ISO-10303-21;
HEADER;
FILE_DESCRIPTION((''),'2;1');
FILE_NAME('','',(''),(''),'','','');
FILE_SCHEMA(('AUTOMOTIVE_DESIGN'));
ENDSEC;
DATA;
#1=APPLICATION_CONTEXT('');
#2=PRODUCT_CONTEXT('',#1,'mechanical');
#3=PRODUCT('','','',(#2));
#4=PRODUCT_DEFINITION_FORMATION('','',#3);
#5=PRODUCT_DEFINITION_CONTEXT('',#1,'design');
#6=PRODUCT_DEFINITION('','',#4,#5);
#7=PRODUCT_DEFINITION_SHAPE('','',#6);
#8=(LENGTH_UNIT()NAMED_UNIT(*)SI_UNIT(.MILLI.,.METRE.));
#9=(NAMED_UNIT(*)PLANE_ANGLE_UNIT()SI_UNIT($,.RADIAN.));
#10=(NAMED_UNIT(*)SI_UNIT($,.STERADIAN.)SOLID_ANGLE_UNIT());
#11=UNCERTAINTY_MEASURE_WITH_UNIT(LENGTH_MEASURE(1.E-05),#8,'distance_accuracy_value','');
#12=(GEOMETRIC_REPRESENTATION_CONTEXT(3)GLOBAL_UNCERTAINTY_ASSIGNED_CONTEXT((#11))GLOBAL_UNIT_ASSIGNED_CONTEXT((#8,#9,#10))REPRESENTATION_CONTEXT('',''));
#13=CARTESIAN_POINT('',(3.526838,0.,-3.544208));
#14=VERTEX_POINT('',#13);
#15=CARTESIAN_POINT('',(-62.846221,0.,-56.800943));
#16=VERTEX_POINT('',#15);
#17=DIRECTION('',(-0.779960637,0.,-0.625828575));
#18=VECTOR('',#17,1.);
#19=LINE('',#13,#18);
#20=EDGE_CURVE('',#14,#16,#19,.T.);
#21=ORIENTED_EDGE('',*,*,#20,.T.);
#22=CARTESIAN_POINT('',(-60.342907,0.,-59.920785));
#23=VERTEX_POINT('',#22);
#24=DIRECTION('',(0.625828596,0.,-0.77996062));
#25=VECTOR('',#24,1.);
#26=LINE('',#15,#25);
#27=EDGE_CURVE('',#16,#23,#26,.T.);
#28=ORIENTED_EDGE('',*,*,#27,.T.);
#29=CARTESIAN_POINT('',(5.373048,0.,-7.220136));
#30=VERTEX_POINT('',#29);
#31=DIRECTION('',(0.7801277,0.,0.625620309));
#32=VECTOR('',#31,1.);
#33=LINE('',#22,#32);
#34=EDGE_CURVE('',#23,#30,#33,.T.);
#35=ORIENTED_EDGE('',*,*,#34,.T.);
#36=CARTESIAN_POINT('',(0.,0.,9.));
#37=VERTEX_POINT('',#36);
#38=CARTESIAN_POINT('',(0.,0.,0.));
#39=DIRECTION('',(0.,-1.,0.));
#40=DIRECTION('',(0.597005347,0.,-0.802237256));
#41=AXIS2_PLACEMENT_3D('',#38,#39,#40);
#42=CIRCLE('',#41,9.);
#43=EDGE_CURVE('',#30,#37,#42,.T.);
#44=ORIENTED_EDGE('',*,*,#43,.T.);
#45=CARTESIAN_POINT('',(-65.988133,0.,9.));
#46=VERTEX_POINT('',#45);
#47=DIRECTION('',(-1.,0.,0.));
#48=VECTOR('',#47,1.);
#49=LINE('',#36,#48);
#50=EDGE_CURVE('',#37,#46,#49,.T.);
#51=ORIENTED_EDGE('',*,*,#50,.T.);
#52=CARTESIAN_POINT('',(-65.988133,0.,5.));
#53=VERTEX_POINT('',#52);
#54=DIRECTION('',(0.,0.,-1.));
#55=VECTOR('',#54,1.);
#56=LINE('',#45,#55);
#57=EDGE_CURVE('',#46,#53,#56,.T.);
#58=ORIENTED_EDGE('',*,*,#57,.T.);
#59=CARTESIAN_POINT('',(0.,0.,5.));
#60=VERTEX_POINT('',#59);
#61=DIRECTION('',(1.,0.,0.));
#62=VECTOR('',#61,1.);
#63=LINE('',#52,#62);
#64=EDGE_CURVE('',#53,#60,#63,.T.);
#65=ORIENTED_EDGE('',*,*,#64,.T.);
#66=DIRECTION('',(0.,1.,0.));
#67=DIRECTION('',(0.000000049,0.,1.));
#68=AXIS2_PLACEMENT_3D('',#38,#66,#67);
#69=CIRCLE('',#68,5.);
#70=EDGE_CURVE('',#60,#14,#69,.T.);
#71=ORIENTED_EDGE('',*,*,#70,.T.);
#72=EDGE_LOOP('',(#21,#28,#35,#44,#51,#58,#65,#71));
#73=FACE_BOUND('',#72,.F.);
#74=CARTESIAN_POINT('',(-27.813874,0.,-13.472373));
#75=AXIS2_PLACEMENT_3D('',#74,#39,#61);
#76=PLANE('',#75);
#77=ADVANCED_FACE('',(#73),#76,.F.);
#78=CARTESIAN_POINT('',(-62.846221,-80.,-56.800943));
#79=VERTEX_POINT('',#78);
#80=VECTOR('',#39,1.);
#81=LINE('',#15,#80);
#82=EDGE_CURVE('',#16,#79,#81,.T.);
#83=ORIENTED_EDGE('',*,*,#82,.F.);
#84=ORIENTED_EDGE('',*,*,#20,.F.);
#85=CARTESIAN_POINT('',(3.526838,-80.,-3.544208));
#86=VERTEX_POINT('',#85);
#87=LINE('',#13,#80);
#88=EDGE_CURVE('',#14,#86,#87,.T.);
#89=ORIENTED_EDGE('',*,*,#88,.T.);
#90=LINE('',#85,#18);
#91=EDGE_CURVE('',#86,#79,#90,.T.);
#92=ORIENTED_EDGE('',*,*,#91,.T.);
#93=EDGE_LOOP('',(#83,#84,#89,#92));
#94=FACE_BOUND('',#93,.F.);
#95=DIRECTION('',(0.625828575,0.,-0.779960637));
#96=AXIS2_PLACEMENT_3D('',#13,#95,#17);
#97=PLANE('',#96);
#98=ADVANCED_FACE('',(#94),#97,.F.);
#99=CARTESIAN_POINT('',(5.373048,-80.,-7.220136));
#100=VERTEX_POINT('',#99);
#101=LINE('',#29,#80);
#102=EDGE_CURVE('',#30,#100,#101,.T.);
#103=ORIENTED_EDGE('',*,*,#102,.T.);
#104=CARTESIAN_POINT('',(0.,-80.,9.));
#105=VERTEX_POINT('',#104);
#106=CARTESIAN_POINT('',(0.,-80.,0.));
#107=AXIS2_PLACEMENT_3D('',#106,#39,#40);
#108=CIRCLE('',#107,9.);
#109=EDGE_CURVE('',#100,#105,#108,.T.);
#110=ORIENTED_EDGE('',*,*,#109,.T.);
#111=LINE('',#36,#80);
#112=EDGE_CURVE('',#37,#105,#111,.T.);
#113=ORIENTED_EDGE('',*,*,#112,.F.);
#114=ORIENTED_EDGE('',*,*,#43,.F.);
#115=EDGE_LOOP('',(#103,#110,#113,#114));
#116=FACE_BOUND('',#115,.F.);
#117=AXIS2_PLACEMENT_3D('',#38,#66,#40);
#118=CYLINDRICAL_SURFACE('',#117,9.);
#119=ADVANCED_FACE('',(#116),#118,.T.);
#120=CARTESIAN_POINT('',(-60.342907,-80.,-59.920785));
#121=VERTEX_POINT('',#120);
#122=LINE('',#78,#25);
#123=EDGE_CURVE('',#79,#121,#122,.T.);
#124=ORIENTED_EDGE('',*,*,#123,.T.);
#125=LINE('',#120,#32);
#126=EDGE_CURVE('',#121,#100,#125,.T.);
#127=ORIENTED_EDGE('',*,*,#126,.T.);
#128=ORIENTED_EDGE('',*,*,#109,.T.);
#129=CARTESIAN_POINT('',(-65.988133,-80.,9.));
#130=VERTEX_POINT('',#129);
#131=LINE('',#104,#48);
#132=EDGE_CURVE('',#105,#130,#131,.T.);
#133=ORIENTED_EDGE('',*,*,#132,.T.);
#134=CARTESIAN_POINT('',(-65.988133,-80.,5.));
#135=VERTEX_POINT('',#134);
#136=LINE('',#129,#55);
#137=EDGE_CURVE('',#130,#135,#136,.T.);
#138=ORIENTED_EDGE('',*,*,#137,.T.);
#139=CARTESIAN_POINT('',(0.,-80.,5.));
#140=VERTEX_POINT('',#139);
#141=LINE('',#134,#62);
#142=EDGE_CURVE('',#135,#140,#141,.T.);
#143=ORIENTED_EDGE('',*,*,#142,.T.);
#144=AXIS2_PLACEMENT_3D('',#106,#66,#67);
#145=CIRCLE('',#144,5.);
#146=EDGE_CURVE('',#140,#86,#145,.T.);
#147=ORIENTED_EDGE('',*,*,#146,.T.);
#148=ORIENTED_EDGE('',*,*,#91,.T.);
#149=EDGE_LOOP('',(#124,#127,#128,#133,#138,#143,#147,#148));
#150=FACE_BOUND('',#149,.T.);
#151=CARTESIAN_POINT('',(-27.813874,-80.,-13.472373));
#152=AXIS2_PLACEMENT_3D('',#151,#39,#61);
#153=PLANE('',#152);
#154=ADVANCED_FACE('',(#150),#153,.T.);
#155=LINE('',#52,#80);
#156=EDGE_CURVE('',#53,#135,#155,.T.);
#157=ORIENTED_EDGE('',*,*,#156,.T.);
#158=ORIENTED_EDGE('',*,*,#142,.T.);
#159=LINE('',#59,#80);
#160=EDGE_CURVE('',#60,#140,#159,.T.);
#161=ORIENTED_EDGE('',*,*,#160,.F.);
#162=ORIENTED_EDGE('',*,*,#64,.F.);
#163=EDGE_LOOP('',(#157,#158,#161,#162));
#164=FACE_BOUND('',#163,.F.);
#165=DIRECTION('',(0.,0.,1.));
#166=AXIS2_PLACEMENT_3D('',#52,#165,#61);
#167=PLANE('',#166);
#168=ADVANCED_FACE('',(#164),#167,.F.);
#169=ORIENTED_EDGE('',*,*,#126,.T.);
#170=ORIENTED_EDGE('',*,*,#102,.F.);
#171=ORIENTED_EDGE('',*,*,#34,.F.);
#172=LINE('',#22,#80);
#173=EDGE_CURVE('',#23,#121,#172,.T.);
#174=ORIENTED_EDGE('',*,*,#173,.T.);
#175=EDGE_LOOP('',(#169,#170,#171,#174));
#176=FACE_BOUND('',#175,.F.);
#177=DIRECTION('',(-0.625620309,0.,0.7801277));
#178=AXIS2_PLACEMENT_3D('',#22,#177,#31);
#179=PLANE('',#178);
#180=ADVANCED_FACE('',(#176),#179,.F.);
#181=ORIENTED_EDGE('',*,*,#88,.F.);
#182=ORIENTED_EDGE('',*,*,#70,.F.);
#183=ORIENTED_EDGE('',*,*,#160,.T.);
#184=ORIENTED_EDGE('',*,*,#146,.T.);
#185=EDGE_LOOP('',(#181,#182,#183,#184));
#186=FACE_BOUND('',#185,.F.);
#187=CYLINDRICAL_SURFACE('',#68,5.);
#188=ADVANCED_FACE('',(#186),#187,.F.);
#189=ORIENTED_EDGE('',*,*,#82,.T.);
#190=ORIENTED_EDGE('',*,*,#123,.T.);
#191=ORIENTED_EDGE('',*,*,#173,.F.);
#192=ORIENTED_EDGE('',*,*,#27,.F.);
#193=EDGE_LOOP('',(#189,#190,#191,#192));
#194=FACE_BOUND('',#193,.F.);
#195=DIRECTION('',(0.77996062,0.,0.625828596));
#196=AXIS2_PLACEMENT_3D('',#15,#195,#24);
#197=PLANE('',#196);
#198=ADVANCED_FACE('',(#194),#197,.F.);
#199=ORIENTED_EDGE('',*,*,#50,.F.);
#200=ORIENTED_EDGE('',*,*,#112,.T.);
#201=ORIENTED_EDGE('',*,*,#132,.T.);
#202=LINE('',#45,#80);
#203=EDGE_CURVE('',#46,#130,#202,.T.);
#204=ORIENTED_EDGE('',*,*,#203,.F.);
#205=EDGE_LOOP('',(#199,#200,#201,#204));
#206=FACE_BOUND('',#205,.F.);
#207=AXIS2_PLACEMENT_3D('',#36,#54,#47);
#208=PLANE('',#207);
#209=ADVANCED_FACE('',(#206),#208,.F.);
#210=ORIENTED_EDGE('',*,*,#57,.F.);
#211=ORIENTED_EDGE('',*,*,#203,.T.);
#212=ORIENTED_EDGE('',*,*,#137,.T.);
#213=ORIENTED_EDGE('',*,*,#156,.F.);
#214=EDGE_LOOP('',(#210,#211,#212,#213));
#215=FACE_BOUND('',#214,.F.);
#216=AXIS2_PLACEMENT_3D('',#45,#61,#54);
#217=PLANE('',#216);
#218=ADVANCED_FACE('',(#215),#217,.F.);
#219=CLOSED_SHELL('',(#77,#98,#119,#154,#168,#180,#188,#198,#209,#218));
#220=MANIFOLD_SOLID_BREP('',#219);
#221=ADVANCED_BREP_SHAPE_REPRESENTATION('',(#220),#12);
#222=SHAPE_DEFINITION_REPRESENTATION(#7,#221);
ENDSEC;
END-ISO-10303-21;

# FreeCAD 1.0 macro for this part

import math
import FreeCAD as App
import Part
import Sketcher

doc = App.newDocument("Part")
body = doc.addObject("PartDesign::Body", "Body")

# Sketch on XZ plane
sketch1 = body.newObject("Sketcher::SketchObject", "Sketch")
sketch1.AttachmentSupport = (doc.getObject("XZ_Plane"), [""])
sketch1.MapMode = "FlatFace"
sketch1.addGeometry([
    Part.LineSegment(App.Vector(-60.3, -59.9, 0), App.Vector(5.4, -7.2, 0)),  # 0
    Part.ArcOfCircle(Part.Circle(App.Vector(0, 0, 0), App.Vector(0, 0, 1), 9), math.radians(-53), math.radians(90)),  # 1
    Part.LineSegment(App.Vector(0, 9, 0), App.Vector(-66, 9, 0)),  # 2
    Part.LineSegment(App.Vector(-66, 9, 0), App.Vector(-66, 5, 0)),  # 3
    Part.LineSegment(App.Vector(-66, 5, 0), App.Vector(0, 5, 0)),  # 4
    Part.ArcOfCircle(Part.Circle(App.Vector(0, 0, 0), App.Vector(0, 0, 1), 5), math.radians(-45), math.radians(90)),  # 5
    Part.LineSegment(App.Vector(3.5, -3.5, 0), App.Vector(-62.8, -56.8, 0)),  # 6
    Part.LineSegment(App.Vector(-62.8, -56.8, 0), App.Vector(-60.3, -59.9, 0)),  # 7
], False)
sketch1.addConstraint([
    Sketcher.Constraint("Coincident", 0, 2, 1, 1),
    Sketcher.Constraint("Tangent", 1, 2, 2, 1),
    Sketcher.Constraint("Coincident", 2, 2, 3, 1),
    Sketcher.Constraint("Coincident", 3, 2, 4, 1),
    Sketcher.Constraint("Tangent", 4, 2, 5, 2),
    Sketcher.Constraint("Coincident", 5, 1, 6, 1),
    Sketcher.Constraint("Coincident", 6, 2, 7, 1),
    Sketcher.Constraint("Coincident", 7, 2, 0, 1),
    Sketcher.Constraint("Horizontal", 2),
    Sketcher.Constraint("Vertical", 3),
    Sketcher.Constraint("Horizontal", 4),
    Sketcher.Constraint("Coincident", 1, 3, -1, 1),
    Sketcher.Constraint("Coincident", 5, 3, -1, 1),
    Sketcher.Constraint("Perpendicular", 6, 7),
    Sketcher.Constraint("Radius", 1, 9.0),
    Sketcher.Constraint("Radius", 5, 5.0),
    Sketcher.Constraint("Distance", 7, 3.999999),
    Sketcher.Constraint("Distance", 6, 85.09796),
    Sketcher.Constraint("DistanceX", 2, 2, 2, 1, 65.988133),
    Sketcher.Constraint("DistanceX", -1, 1, 5, 1, 3.526838),
    Sketcher.Constraint("DistanceX", 6, 2, -1, 1, 62.846221),
    Sketcher.Constraint("DistanceX", 1, 3, 0, 2, 5.373048),
])
pad1 = body.newObject("PartDesign::Pad", "Pad")
pad1.Profile = sketch1
pad1.Length = 80

doc.recompute()
